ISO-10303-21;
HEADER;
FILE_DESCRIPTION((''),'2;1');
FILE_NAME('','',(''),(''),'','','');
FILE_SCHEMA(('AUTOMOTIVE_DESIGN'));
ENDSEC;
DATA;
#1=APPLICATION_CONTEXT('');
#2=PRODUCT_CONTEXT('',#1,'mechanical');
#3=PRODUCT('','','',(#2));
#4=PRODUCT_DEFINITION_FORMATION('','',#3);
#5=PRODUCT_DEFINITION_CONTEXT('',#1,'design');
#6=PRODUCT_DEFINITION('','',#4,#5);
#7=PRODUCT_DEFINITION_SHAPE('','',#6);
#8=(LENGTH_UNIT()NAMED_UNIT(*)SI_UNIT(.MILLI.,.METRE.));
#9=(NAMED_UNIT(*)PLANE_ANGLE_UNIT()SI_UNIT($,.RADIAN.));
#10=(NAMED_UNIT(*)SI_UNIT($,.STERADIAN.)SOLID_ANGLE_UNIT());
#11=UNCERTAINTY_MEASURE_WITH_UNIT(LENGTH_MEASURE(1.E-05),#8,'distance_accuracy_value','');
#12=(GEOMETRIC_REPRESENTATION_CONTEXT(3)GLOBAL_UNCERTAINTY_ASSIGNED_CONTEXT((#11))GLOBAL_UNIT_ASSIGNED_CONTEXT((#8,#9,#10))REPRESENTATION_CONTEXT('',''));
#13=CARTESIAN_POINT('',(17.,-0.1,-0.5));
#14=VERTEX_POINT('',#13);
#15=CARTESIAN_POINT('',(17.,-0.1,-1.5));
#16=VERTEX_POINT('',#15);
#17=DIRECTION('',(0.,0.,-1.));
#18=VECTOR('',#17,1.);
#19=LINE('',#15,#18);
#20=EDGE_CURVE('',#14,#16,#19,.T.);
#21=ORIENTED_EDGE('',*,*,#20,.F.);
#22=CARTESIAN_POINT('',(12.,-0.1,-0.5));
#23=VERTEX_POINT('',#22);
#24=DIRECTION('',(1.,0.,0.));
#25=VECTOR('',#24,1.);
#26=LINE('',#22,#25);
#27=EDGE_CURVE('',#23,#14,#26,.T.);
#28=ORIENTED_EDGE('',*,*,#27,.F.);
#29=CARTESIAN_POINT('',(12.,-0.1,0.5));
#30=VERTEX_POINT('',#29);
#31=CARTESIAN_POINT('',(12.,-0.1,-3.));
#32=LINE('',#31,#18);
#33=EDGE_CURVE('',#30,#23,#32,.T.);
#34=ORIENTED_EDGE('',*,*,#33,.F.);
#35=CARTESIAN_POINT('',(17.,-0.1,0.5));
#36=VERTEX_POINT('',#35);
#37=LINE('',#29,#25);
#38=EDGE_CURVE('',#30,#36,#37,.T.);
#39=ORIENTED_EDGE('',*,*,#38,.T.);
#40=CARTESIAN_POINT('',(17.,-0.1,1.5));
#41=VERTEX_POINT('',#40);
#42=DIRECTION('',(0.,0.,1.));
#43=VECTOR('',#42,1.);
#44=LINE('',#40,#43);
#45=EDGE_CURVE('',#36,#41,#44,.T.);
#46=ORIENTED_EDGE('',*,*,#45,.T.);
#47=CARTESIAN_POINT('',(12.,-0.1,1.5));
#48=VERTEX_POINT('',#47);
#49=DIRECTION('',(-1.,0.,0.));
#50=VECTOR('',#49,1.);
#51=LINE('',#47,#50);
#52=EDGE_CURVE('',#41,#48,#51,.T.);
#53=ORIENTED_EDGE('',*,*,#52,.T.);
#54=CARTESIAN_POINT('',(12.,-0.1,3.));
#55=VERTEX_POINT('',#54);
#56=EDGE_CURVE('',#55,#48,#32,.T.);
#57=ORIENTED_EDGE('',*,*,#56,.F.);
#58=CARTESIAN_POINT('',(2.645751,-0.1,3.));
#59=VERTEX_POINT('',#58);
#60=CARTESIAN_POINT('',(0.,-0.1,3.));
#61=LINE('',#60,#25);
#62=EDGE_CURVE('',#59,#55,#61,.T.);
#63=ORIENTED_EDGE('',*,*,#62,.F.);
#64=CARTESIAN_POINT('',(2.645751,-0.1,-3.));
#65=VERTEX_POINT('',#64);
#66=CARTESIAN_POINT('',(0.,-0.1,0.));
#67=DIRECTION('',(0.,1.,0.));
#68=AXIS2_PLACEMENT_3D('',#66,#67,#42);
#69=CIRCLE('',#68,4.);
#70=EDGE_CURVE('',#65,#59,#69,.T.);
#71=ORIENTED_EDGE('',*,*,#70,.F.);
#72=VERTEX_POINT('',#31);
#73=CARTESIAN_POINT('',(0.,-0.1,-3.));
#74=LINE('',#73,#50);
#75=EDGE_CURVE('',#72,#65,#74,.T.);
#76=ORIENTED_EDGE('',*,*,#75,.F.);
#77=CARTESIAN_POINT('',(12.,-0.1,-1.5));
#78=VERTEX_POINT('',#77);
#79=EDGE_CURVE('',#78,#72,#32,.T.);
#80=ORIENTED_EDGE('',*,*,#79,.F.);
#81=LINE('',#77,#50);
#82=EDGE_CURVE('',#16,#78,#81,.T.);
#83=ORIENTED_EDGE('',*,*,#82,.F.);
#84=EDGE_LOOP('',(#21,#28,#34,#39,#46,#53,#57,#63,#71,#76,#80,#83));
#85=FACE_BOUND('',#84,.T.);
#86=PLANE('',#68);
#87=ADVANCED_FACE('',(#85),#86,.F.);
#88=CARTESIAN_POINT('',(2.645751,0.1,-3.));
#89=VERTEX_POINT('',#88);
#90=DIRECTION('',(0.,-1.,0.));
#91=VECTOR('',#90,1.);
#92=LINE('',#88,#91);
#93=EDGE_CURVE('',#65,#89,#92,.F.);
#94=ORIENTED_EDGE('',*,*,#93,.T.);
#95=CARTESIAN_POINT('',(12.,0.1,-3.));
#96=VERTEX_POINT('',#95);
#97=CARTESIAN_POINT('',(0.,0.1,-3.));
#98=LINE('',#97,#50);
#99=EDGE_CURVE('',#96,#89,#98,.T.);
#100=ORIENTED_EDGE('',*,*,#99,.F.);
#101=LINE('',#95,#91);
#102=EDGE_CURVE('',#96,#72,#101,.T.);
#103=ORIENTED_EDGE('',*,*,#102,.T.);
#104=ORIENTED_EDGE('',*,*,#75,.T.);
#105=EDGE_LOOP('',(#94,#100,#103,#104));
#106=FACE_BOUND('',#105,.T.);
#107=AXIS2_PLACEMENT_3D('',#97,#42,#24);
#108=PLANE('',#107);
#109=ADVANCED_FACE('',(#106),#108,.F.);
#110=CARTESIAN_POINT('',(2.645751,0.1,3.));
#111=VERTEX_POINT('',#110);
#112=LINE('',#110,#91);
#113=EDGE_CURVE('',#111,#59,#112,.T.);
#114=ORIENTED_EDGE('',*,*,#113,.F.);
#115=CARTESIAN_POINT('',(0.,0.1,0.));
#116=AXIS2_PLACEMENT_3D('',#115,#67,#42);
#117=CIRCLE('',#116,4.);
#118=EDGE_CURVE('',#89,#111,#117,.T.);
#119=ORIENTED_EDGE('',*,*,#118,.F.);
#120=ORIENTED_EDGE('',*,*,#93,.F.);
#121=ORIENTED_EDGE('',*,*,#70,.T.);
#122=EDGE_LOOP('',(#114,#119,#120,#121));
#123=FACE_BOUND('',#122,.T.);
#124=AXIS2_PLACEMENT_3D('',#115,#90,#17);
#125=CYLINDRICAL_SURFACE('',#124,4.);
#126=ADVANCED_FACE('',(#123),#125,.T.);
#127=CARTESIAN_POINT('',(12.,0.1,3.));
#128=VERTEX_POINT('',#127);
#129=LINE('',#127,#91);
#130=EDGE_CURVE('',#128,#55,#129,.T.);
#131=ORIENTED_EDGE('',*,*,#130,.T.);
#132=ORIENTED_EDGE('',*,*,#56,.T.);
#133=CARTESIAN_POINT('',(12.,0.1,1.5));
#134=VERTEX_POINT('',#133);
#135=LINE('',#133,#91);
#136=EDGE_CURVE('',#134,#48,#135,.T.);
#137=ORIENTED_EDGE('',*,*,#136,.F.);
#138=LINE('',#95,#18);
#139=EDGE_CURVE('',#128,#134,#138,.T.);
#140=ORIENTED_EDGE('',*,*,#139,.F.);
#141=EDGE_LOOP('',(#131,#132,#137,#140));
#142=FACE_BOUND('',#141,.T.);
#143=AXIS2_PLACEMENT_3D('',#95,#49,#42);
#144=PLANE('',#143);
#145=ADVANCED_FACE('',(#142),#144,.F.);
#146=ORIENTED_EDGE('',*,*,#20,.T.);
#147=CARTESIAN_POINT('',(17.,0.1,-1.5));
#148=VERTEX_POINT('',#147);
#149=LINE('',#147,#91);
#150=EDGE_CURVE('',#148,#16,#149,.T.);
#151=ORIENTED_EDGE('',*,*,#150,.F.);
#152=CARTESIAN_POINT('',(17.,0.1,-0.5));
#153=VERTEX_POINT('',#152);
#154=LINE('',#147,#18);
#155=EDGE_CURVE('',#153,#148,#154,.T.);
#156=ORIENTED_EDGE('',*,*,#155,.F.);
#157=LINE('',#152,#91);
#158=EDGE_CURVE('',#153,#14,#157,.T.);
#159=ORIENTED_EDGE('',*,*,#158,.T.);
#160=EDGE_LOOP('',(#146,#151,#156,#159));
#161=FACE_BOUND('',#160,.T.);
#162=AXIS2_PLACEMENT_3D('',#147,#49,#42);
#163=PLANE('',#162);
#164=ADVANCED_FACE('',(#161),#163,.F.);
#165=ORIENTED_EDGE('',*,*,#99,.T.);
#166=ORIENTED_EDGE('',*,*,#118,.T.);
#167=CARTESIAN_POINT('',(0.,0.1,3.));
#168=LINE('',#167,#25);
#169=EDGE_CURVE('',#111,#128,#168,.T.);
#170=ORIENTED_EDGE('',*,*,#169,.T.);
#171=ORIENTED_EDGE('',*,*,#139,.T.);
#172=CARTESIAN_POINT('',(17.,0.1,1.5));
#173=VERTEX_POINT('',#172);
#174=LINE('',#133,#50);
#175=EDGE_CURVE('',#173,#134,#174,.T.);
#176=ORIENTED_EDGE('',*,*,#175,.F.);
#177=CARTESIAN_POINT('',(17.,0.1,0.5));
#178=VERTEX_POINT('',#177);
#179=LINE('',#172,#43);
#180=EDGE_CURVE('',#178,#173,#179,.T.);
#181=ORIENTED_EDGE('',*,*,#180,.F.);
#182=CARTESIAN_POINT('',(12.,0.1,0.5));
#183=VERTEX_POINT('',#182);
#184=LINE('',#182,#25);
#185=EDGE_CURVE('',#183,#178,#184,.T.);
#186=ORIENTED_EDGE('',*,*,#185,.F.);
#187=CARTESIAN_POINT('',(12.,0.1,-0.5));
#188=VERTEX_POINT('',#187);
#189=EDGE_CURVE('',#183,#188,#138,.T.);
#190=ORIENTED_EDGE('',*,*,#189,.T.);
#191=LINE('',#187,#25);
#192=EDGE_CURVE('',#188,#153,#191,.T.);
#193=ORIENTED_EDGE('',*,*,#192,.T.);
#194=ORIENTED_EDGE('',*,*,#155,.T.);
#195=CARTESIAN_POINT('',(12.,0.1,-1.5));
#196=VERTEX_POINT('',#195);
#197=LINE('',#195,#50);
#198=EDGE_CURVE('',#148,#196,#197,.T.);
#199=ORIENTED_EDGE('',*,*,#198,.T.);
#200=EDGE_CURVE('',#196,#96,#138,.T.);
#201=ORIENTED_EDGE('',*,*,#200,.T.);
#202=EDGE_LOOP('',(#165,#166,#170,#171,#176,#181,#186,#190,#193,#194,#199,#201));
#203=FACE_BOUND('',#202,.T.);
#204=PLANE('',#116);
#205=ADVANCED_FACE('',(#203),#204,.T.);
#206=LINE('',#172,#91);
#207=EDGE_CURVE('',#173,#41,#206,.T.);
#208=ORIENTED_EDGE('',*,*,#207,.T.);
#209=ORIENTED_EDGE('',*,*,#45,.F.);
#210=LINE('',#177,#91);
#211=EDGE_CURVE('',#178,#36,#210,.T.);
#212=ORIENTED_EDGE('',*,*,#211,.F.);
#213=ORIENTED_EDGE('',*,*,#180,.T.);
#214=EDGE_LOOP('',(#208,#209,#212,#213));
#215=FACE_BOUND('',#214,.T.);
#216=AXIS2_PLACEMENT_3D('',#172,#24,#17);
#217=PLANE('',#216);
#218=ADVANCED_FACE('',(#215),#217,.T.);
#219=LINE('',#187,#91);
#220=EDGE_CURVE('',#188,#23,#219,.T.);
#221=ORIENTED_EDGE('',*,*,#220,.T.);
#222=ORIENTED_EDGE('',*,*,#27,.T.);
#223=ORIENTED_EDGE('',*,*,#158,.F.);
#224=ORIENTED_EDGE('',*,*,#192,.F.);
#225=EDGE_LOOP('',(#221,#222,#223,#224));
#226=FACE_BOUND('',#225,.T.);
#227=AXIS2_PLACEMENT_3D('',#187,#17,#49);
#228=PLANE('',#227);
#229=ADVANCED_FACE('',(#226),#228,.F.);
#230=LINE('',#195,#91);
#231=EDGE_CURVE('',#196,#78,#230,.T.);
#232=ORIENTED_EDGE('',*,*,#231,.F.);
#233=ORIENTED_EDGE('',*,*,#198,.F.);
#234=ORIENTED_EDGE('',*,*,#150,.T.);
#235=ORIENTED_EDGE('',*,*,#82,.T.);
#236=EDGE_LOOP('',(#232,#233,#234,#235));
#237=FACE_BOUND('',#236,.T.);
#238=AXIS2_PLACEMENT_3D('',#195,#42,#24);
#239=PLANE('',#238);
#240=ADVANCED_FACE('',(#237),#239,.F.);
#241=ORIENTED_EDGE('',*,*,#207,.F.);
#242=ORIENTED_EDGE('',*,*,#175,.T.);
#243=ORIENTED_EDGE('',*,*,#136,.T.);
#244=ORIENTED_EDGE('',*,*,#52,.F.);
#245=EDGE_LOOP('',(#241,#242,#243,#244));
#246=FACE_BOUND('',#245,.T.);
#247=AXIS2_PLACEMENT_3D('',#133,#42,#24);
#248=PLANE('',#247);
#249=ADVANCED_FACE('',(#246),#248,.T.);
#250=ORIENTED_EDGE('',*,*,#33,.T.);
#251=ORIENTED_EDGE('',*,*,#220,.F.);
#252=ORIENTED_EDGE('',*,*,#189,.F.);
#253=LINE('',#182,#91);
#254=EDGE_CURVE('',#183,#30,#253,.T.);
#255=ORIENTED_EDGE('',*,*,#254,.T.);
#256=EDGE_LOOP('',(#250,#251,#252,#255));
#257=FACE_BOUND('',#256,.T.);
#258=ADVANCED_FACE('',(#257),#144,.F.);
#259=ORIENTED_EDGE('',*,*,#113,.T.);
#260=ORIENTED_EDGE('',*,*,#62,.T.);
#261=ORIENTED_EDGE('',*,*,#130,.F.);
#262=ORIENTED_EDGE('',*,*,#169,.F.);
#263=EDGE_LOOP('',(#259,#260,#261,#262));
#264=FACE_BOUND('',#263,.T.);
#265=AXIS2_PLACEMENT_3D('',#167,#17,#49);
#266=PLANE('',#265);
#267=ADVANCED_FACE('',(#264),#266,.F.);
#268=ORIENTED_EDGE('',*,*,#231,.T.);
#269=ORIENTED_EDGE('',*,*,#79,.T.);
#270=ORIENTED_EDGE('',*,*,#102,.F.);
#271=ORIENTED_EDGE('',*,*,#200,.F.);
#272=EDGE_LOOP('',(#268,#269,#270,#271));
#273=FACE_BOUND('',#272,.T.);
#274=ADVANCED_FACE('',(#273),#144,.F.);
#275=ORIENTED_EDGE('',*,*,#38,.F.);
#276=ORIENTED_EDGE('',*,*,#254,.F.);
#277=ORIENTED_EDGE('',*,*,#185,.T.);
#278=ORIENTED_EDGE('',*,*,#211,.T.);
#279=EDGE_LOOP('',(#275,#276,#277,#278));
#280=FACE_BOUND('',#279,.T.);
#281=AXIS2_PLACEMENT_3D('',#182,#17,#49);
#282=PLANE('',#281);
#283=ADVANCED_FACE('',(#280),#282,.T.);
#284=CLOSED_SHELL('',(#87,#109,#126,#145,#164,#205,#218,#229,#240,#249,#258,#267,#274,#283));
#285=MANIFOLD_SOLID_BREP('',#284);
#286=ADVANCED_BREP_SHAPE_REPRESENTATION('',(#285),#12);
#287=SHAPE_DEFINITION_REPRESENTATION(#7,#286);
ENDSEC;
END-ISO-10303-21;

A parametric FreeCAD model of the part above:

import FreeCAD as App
import Part
import Sketcher
from FreeCAD import Vector


def add_polygon(sketch, points):
    """Adds a closed chain of lines whose ends are joined by coincident constraints."""
    first, n = sketch.GeometryCount, len(points)
    for a, b in zip(points, points[1:] + points[:1]):
        sketch.addGeometry(Part.LineSegment(App.Vector(*a, 0), App.Vector(*b, 0)), False)
    for i in range(n):
        sketch.addConstraint(Sketcher.Constraint("Coincident", first + i, 2, first + (i + 1) % n, 1))

doc = App.newDocument("Part")
body = doc.addObject("PartDesign::Body", "Body")

# Sketch on XZ plane
sketch1 = body.newObject("Sketcher::SketchObject", "Sketch")
sketch1.AttachmentSupport = (doc.getObject("XZ_Plane"), [""])
sketch1.MapMode = "FlatFace"
sketch1.addGeometry(Part.Circle(Vector(0, 0, 0), Vector(0, 0, 1), 4), False)
sketch1.addConstraint([
    Sketcher.Constraint("Coincident", 0, 3, -1, 1),
    Sketcher.Constraint("Diameter", 0, 8.0),
])
pad1 = body.newObject("PartDesign::Pad", "Pad")
pad1.Profile = sketch1
pad1.Length = 0.2
pad1.Midplane = True

# Sketch on XZ plane
sketch2 = body.newObject("Sketcher::SketchObject", "Sketch001")
sketch2.AttachmentSupport = (doc.getObject("XZ_Plane"), [""])
sketch2.MapMode = "FlatFace"
add_polygon(sketch2, [(0, -3), (0, 3), (12, 3), (12, -3)])  # lines 0-3
sketch2.addConstraint([
    Sketcher.Constraint("Vertical", 0),
    Sketcher.Constraint("Horizontal", 1),
    Sketcher.Constraint("Vertical", 2),
    Sketcher.Constraint("Horizontal", 3),
    Sketcher.Constraint("Symmetric", 0, 2, 3, 2, -1, 1),
    Sketcher.Constraint("DistanceX", 1, 1, 1, 2, 12.0),
    Sketcher.Constraint("DistanceY", 0, 1, 0, 2, 6.0),
])
pad2 = body.newObject("PartDesign::Pad", "Pad001")
pad2.Profile = sketch2
pad2.Length = 0.2
pad2.Midplane = True

# Sketch on XZ plane
sketch3 = body.newObject("Sketcher::SketchObject", "Sketch002")
sketch3.AttachmentSupport = (doc.getObject("XZ_Plane"), [""])
sketch3.MapMode = "FlatFace"
add_polygon(sketch3, [(12, -1.5), (12, -0.5), (17, -0.5), (17, -1.5)])  # lines 0-3
sketch3.addConstraint([
    Sketcher.Constraint("Vertical", 0),
    Sketcher.Constraint("Horizontal", 1),
    Sketcher.Constraint("Vertical", 2),
    Sketcher.Constraint("Horizontal", 3),
    Sketcher.Constraint("DistanceX", 1, 1, 1, 2, 5.0),
    Sketcher.Constraint("DistanceY", 0, 1, 0, 2, 1.0),
    Sketcher.Constraint("DistanceX", -1, 1, 0, 2, 12.0),
    Sketcher.Constraint("DistanceY", 0, 2, -1, 1, 0.5),
])
pad3 = body.newObject("PartDesign::Pad", "Pad002")
pad3.Profile = sketch3
pad3.Length = 0.2
pad3.Midplane = True
doc.recompute()

mirrored = body.newObject("PartDesign::Mirrored", "Mirrored")
mirrored.Originals = [pad3]
mirrored.MirrorPlane = (doc.getObject("XY_Plane"), [""])
body.Tip = mirrored

doc.recompute()
